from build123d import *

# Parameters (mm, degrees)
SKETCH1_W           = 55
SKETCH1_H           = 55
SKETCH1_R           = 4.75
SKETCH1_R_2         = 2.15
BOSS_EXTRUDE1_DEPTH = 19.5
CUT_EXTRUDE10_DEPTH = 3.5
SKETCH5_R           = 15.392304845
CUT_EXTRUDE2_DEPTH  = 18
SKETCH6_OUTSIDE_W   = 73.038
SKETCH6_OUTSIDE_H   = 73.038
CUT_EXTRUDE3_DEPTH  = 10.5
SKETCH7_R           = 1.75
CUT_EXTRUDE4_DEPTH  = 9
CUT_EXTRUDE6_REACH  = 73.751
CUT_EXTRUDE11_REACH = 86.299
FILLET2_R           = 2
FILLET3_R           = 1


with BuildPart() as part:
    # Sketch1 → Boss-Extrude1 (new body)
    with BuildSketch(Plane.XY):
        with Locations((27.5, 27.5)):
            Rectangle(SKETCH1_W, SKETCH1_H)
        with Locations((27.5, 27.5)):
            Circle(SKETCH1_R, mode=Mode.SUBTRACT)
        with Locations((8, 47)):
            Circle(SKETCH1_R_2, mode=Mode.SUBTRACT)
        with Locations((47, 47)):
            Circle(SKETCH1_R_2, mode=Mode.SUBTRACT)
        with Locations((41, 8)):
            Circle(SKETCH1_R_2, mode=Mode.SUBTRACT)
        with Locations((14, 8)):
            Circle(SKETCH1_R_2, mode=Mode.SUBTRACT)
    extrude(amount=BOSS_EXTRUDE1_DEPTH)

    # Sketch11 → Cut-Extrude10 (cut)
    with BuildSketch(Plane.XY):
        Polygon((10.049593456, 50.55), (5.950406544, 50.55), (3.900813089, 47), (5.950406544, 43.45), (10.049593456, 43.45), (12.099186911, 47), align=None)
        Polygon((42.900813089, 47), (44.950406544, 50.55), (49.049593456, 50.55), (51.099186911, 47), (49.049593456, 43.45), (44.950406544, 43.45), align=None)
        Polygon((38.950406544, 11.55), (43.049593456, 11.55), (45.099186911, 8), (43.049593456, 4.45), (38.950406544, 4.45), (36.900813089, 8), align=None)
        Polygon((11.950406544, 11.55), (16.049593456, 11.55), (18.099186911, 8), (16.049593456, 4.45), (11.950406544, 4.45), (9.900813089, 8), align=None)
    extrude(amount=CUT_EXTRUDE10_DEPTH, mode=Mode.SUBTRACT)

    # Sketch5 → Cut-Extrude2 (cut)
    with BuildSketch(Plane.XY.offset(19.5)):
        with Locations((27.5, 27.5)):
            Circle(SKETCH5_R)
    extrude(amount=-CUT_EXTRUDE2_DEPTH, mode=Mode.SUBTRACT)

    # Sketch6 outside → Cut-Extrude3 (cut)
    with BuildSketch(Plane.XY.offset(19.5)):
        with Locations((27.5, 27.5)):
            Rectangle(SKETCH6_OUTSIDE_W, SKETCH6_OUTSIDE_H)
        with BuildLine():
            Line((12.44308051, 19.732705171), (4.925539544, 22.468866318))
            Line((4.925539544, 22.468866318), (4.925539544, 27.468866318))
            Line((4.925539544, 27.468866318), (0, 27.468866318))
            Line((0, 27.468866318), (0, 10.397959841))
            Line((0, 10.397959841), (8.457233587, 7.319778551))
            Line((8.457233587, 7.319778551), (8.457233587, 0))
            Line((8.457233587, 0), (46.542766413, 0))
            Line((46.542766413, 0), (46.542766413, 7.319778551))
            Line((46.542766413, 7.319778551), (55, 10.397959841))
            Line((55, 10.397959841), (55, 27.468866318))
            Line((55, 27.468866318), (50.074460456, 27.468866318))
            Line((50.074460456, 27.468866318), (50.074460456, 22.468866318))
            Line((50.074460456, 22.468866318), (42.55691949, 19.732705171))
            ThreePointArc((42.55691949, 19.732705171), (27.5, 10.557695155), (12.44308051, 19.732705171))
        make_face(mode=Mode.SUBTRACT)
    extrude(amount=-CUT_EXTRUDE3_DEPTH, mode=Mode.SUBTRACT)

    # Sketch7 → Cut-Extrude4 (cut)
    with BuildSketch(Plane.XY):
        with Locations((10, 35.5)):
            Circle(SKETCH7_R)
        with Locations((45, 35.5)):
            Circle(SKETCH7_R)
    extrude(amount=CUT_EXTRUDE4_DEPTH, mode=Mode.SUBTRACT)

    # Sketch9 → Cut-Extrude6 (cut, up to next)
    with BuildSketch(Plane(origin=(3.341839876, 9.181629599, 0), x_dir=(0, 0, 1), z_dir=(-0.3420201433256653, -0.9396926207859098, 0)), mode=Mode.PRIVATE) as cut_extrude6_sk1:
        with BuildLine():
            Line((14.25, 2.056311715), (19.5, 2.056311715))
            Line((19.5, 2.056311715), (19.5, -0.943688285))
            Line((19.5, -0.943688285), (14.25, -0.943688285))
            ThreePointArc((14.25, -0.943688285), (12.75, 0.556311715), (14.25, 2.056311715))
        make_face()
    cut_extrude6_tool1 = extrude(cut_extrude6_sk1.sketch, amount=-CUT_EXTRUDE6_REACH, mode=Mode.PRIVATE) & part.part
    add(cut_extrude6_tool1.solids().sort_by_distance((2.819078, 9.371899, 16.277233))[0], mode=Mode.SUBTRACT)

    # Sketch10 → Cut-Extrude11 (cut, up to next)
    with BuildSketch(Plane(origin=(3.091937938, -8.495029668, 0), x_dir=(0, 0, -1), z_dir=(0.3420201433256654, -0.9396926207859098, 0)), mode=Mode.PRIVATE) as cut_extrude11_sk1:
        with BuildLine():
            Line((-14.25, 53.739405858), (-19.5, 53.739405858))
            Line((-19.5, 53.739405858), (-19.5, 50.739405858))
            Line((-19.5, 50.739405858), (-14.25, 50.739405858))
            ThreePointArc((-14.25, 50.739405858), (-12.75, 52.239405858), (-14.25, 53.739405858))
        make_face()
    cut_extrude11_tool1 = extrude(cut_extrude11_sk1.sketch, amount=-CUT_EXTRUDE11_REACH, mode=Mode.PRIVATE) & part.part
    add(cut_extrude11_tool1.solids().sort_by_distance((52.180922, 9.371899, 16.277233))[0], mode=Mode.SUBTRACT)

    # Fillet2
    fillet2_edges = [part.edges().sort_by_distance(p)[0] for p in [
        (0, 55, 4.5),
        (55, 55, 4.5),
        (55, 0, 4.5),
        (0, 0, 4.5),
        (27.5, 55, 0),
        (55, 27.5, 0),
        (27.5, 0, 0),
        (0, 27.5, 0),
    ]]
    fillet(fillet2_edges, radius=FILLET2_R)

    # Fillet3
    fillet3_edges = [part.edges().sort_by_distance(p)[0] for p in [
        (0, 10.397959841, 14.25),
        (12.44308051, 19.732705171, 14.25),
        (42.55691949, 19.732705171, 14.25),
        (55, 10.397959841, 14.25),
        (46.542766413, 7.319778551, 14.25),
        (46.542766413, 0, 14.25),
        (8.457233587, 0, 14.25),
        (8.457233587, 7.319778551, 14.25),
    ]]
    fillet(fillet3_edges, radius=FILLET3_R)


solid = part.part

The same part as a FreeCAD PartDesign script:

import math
import FreeCAD as App
import Part
import Sketcher
from FreeCAD import Vector
Q = App.Units.Quantity


def edges_at(feature, points):
    """Names of the edges that pass closest to the given points."""
    edges = feature.Shape.Edges
    near = lambda p: min(range(len(edges)), key=lambda i: edges[i].distToShape(Part.Vertex(*p))[0])
    return sorted({f"Edge{near(p) + 1}" for p in points})


def add_polygon(sketch, points):
    """Adds a closed chain of lines whose ends are joined by coincident constraints."""
    first, n = sketch.GeometryCount, len(points)
    for a, b in zip(points, points[1:] + points[:1]):
        sketch.addGeometry(Part.LineSegment(App.Vector(*a, 0), App.Vector(*b, 0)), False)
    for i in range(n):
        sketch.addConstraint(Sketcher.Constraint("Coincident", first + i, 2, first + (i + 1) % n, 1))

doc = App.newDocument("Part")
body = doc.addObject("PartDesign::Body", "Body")

sketch1 = body.newObject("Sketcher::SketchObject", "Sketch")
sketch1.AttachmentSupport = (doc.getObject("XY_Plane"), [""])
sketch1.MapMode = "FlatFace"
add_polygon(sketch1, [(0, 55), (0, 0), (55, 0), (55, 55)])
sketch1.addGeometry(Part.Circle(Vector(14, 8, 0), Vector(0, 0, 1), 2.1), False)
sketch1.addGeometry(Part.Circle(Vector(41, 8, 0), Vector(0, 0, 1), 2.1), False)
sketch1.addGeometry(Part.Circle(Vector(8, 47, 0), Vector(0, 0, 1), 2.1), False)
sketch1.addGeometry(Part.Circle(Vector(27.5, 27.5, 0), Vector(0, 0, 1), 4.8), False)
sketch1.addGeometry(Part.Circle(Vector(47, 47, 0), Vector(0, 0, 1), 2.1), False)
sketch1.addConstraint(Sketcher.Constraint("Vertical", 0))
sketch1.addConstraint(Sketcher.Constraint("Horizontal", 1))
sketch1.addConstraint(Sketcher.Constraint("Vertical", 2))
sketch1.addConstraint(Sketcher.Constraint("Horizontal", 3))
sketch1.addConstraint(Sketcher.Constraint("Coincident", 0, 2, -1, 1))
sketch1.addConstraint(Sketcher.Constraint("Equal", 4, 5))
sketch1.addConstraint(Sketcher.Constraint("Equal", 5, 6))
sketch1.addConstraint(Sketcher.Constraint("Equal", 6, 8))
sketch1.addConstraint(Sketcher.Constraint("Horizontal", 4, 3, 5, 3))
sketch1.addConstraint(Sketcher.Constraint("Horizontal", 6, 3, 8, 3))
sketch1.addConstraint(Sketcher.Constraint("Equal", 3, 0))
sketch1.addConstraint(Sketcher.Constraint("Diameter", 4, Q("4.3 mm")))
sketch1.addConstraint(Sketcher.Constraint("Diameter", 7, Q("9.5 mm")))
sketch1.addConstraint(Sketcher.Constraint("DistanceX", 1, 1, 1, 2, Q("55 mm")))
sketch1.addConstraint(Sketcher.Constraint("DistanceX", -1, 1, 4, 3, Q("14 mm")))
sketch1.addConstraint(Sketcher.Constraint("DistanceY", -1, 1, 4, 3, Q("8 mm")))
sketch1.addConstraint(Sketcher.Constraint("DistanceX", -1, 1, 5, 3, Q("41 mm")))
sketch1.addConstraint(Sketcher.Constraint("DistanceX", -1, 1, 6, 3, Q("8 mm")))
sketch1.addConstraint(Sketcher.Constraint("DistanceY", -1, 1, 6, 3, Q("47 mm")))
sketch1.addConstraint(Sketcher.Constraint("DistanceX", -1, 1, 8, 3, Q("47 mm")))
sketch1.addConstraint(Sketcher.Constraint("DistanceX", -1, 1, 7, 3, Q("27.5 mm")))
sketch1.addConstraint(Sketcher.Constraint("DistanceY", -1, 1, 7, 3, Q("27.5 mm")))
pad1 = body.newObject("PartDesign::Pad", "Pad")
pad1.Profile = sketch1
pad1.Length = 19.5

sketch2 = body.newObject("Sketcher::SketchObject", "Sketch001")
sketch2.AttachmentSupport = (doc.getObject("XY_Plane"), [""])
sketch2.MapMode = "FlatFace"
add_polygon(sketch2, [(10, 50.5), (6, 50.5), (3.9, 47), (6, 43.5), (10, 43.5), (12.1, 47)])
add_polygon(sketch2, [(45, 50.5), (42.9, 47), (45, 43.5), (49, 43.5), (51.1, 47), (49, 50.5)])
add_polygon(sketch2, [(43, 11.6), (39, 11.6), (36.9, 8), (39, 4.5), (43, 4.5), (45.1, 8)])
add_polygon(sketch2, [(16, 11.6), (12, 11.6), (9.9, 8), (12, 4.5), (16, 4.5), (18.1, 8)])
sketch2.addConstraint(Sketcher.Constraint("Horizontal", 0))
sketch2.addConstraint(Sketcher.Constraint("Horizontal", 3))
sketch2.addConstraint(Sketcher.Constraint("Horizontal", 8))
sketch2.addConstraint(Sketcher.Constraint("Horizontal", 11))
sketch2.addConstraint(Sketcher.Constraint("Horizontal", 12))
sketch2.addConstraint(Sketcher.Constraint("Horizontal", 15))
sketch2.addConstraint(Sketcher.Constraint("Horizontal", 18))
sketch2.addConstraint(Sketcher.Constraint("Horizontal", 21))
sketch2.addConstraint(Sketcher.Constraint("Parallel", 1, 4))
sketch2.addConstraint(Sketcher.Constraint("Parallel", 2, 5))
sketch2.addConstraint(Sketcher.Constraint("Parallel", 4, 6))
sketch2.addConstraint(Sketcher.Constraint("Parallel", 5, 7))
sketch2.addConstraint(Sketcher.Constraint("Parallel", 6, 9))
sketch2.addConstraint(Sketcher.Constraint("Parallel", 7, 10))
sketch2.addConstraint(Sketcher.Constraint("Parallel", 9, 13))
sketch2.addConstraint(Sketcher.Constraint("Parallel", 10, 14))
sketch2.addConstraint(Sketcher.Constraint("Parallel", 13, 16))
sketch2.addConstraint(Sketcher.Constraint("Parallel", 14, 17))
sketch2.addConstraint(Sketcher.Constraint("Parallel", 16, 19))
sketch2.addConstraint(Sketcher.Constraint("Parallel", 17, 20))
sketch2.addConstraint(Sketcher.Constraint("Parallel", 19, 22))
sketch2.addConstraint(Sketcher.Constraint("Parallel", 20, 23))
sketch2.addConstraint(Sketcher.Constraint("Horizontal", 1, 2, 4, 2))
sketch2.addConstraint(Sketcher.Constraint("Horizontal", 4, 2, 6, 2))
sketch2.addConstraint(Sketcher.Constraint("Horizontal", 3, 2, 7, 2))
sketch2.addConstraint(Sketcher.Constraint("Horizontal", 6, 2, 9, 2))
sketch2.addConstraint(Sketcher.Constraint("Horizontal", 5, 2, 10, 2))
sketch2.addConstraint(Sketcher.Constraint("Horizontal", 13, 2, 16, 2))
sketch2.addConstraint(Sketcher.Constraint("Horizontal", 17, 2, 18, 2))
sketch2.addConstraint(Sketcher.Constraint("Horizontal", 16, 2, 19, 2))
sketch2.addConstraint(Sketcher.Constraint("Horizontal", 15, 2, 20, 2))
sketch2.addConstraint(Sketcher.Constraint("Horizontal", 19, 2, 22, 2))
sketch2.addConstraint(Sketcher.Constraint("Vertical", 0, 2, 2, 2))
sketch2.addConstraint(Sketcher.Constraint("Vertical", 3, 2, 5, 2))
sketch2.addConstraint(Sketcher.Constraint("Vertical", 12, 2, 14, 2))
sketch2.addConstraint(Sketcher.Constraint("Equal", 3, 8))
sketch2.addConstraint(Sketcher.Constraint("Equal", 11, 12))
sketch2.addConstraint(Sketcher.Constraint("Equal", 15, 18))
sketch2.addConstraint(Sketcher.Constraint("Equal", 10, 13))
sketch2.addConstraint(Sketcher.Constraint("Angle", 1, Q("-120 deg")))
sketch2.addConstraint(Sketcher.Constraint("DistanceY", -1, 1, 1, 2, Q("47 mm")))
sketch2.addConstraint(Sketcher.Constraint("DistanceY", -1, 1, 13, 2, Q("8 mm")))
sketch2.addConstraint(Sketcher.Constraint("DistanceX", 2, 2, 7, 2, Q("39 mm")))
sketch2.addConstraint(Sketcher.Constraint("DistanceX", 12, 2, 7, 2, Q("6 mm")))
sketch2.addConstraint(Sketcher.Constraint("DistanceX", 18, 2, 12, 2, Q("27 mm")))
sketch2.addConstraint(Sketcher.Constraint("DistanceY", 2, 2, 0, 2, Q("7.1 mm")))
sketch2.addConstraint(Sketcher.Constraint("DistanceX", 0, 2, 0, 1, Q("4.099187 mm")))
sketch2.addConstraint(Sketcher.Constraint("DistanceX", -1, 1, 0, 2, Q("5.950407 mm")))
pocket1 = body.newObject("PartDesign::Pocket", "Pocket")
pocket1.Profile = sketch2
pocket1.Length = 3.5
pocket1.Reversed = True

sketch3 = body.newObject("Sketcher::SketchObject", "Sketch002")
sketch3.AttachmentSupport = (doc.getObject("XY_Plane"), [""])
sketch3.MapMode = "FlatFace"
sketch3.AttachmentOffset = App.Placement(Vector(0, 0, 19.5), App.Rotation())
sketch3.addGeometry(Part.Circle(Vector(28, 28, 0), Vector(0, 0, 1), 15), False)
sketch3.addConstraint(Sketcher.Constraint("DistanceX", -1, 1, 0, 3, Q("27.5 mm")))
sketch3.addConstraint(Sketcher.Constraint("DistanceY", -1, 1, 0, 3, Q("27.5 mm")))
sketch3.addConstraint(Sketcher.Constraint("Diameter", 0, Q("30.78461 mm")))
pocket2 = body.newObject("PartDesign::Pocket", "Pocket001")
pocket2.Profile = sketch3
pocket2.Length = 18

sketch4 = body.newObject("Sketcher::SketchObject", "Sketch003")
sketch4.AttachmentSupport = (doc.getObject("XY_Plane"), [""])
sketch4.MapMode = "FlatFace"
sketch4.AttachmentOffset = App.Placement(Vector(0, 0, 19.5), App.Rotation())
add_polygon(sketch4, [(-9, 64), (-9, -9), (64, -9), (64, 64)])
sketch4.addGeometry(Part.LineSegment(Vector(4.9, 22.5, 0), Vector(12.4, 19.7, 0)), False)
sketch4.addGeometry(Part.ArcOfCircle(Part.Circle(Vector(27.5, 27.5, 0), Vector(0, 0, 1), 16.9), math.radians(-153), math.radians(-27)), False)
sketch4.addGeometry(Part.LineSegment(Vector(42.6, 19.7, 0), Vector(50.1, 22.5, 0)), False)
sketch4.addGeometry(Part.LineSegment(Vector(50.1, 22.5, 0), Vector(50.1, 27.5, 0)), False)
sketch4.addGeometry(Part.LineSegment(Vector(50.1, 27.5, 0), Vector(55, 27.5, 0)), False)
sketch4.addGeometry(Part.LineSegment(Vector(55, 27.5, 0), Vector(55, 10.4, 0)), False)
sketch4.addGeometry(Part.LineSegment(Vector(55, 10.4, 0), Vector(46.5, 7.3, 0)), False)
sketch4.addGeometry(Part.LineSegment(Vector(46.5, 7.3, 0), Vector(46.5, 0, 0)), False)
sketch4.addGeometry(Part.LineSegment(Vector(46.5, 0, 0), Vector(8.5, 0, 0)), False)
sketch4.addGeometry(Part.LineSegment(Vector(8.5, 0, 0), Vector(8.5, 7.3, 0)), False)
sketch4.addGeometry(Part.LineSegment(Vector(8.5, 7.3, 0), Vector(0, 10.4, 0)), False)
sketch4.addGeometry(Part.LineSegment(Vector(0, 10.4, 0), Vector(0, 27.5, 0)), False)
sketch4.addGeometry(Part.LineSegment(Vector(0, 27.5, 0), Vector(4.9, 27.5, 0)), False)
sketch4.addGeometry(Part.LineSegment(Vector(4.9, 27.5, 0), Vector(4.9, 22.5, 0)), False)
sketch4.addConstraint(Sketcher.Constraint("Coincident", 4, 2, 5, 1))
sketch4.addConstraint(Sketcher.Constraint("Coincident", 5, 2, 6, 1))
sketch4.addConstraint(Sketcher.Constraint("Coincident", 6, 2, 7, 1))
sketch4.addConstraint(Sketcher.Constraint("Coincident", 7, 2, 8, 1))
sketch4.addConstraint(Sketcher.Constraint("Coincident", 8, 2, 9, 1))
sketch4.addConstraint(Sketcher.Constraint("Coincident", 9, 2, 10, 1))
sketch4.addConstraint(Sketcher.Constraint("Coincident", 10, 2, 11, 1))
sketch4.addConstraint(Sketcher.Constraint("Coincident", 11, 2, 12, 1))
sketch4.addConstraint(Sketcher.Constraint("Coincident", 12, 2, 13, 1))
sketch4.addConstraint(Sketcher.Constraint("Coincident", 13, 2, 14, 1))
sketch4.addConstraint(Sketcher.Constraint("Coincident", 14, 2, 15, 1))
sketch4.addConstraint(Sketcher.Constraint("Coincident", 15, 2, 16, 1))
sketch4.addConstraint(Sketcher.Constraint("Coincident", 16, 2, 17, 1))
sketch4.addConstraint(Sketcher.Constraint("Coincident", 17, 2, 4, 1))
sketch4.addConstraint(Sketcher.Constraint("Vertical", 0))
sketch4.addConstraint(Sketcher.Constraint("Horizontal", 1))
sketch4.addConstraint(Sketcher.Constraint("Vertical", 2))
sketch4.addConstraint(Sketcher.Constraint("Horizontal", 3))
sketch4.addConstraint(Sketcher.Constraint("Vertical", 7))
sketch4.addConstraint(Sketcher.Constraint("Horizontal", 8))
sketch4.addConstraint(Sketcher.Constraint("Vertical", 9))
sketch4.addConstraint(Sketcher.Constraint("Vertical", 11))
sketch4.addConstraint(Sketcher.Constraint("Horizontal", 12))
sketch4.addConstraint(Sketcher.Constraint("Vertical", 13))
sketch4.addConstraint(Sketcher.Constraint("Vertical", 15))
sketch4.addConstraint(Sketcher.Constraint("Horizontal", 16))
sketch4.addConstraint(Sketcher.Constraint("Vertical", 17))
sketch4.addConstraint(Sketcher.Constraint("PointOnObject", 11, 2, -1))
sketch4.addConstraint(Sketcher.Constraint("PointOnObject", 14, 2, -2))
sketch4.addConstraint(Sketcher.Constraint("Parallel", 6, 10))
sketch4.addConstraint(Sketcher.Constraint("Parallel", 4, 14))
sketch4.addConstraint(Sketcher.Constraint("Horizontal", 4, 2, 5, 2))
sketch4.addConstraint(Sketcher.Constraint("Horizontal", 10, 2, 13, 2))
sketch4.addConstraint(Sketcher.Constraint("Horizontal", 9, 2, 14, 2))
sketch4.addConstraint(Sketcher.Constraint("Horizontal", 8, 2, 15, 2))
sketch4.addConstraint(Sketcher.Constraint("Horizontal", 6, 2, 17, 2))
sketch4.addConstraint(Sketcher.Constraint("Equal", 8, 16))
sketch4.addConstraint(Sketcher.Constraint("Equal", 3, 0))
sketch4.addConstraint(Sketcher.Constraint("Equal", 4, 6))
sketch4.addConstraint(Sketcher.Constraint("DistanceY", 7, 1, 7, 2, Q("5 mm")))
sketch4.addConstraint(Sketcher.Constraint("Angle", 4, Q("-20 deg")))
sketch4.addConstraint(Sketcher.Constraint("Distance", 4, Q("8 mm")))
sketch4.addConstraint(Sketcher.Constraint("Distance", 10, Q("9 mm")))
sketch4.addConstraint(Sketcher.Constraint("DistanceX", -1, 1, 8, 2, Q("55 mm")))
sketch4.addConstraint(Sketcher.Constraint("DistanceY", -1, 1, 5, 3, Q("27.5 mm")))
sketch4.addConstraint(Sketcher.Constraint("DistanceX", 1, 1, 1, 2, Q("73.038 mm")))
sketch4.addConstraint(Sketcher.Constraint("DistanceX", 0, 2, -1, 1, Q("9.019 mm")))
sketch4.addConstraint(Sketcher.Constraint("DistanceY", 0, 2, -1, 1, Q("9.019 mm")))
sketch4.addConstraint(Sketcher.Constraint("Radius", 5, Q("16.942305 mm")))
sketch4.addConstraint(Sketcher.Constraint("DistanceX", 8, 1, 8, 2, Q("4.92554 mm")))
sketch4.addConstraint(Sketcher.Constraint("DistanceY", 11, 2, 11, 1, Q("7.319779 mm")))
pocket3 = body.newObject("PartDesign::Pocket", "Pocket002")
pocket3.Profile = sketch4
pocket3.Length = 10.5

sketch5 = body.newObject("Sketcher::SketchObject", "Sketch004")
sketch5.AttachmentSupport = (doc.getObject("XY_Plane"), [""])
sketch5.MapMode = "FlatFace"
sketch5.addGeometry(Part.Circle(Vector(10, 35.5, 0), Vector(0, 0, 1), 1.8), False)
sketch5.addGeometry(Part.Circle(Vector(45, 35.5, 0), Vector(0, 0, 1), 1.8), False)
sketch5.addConstraint(Sketcher.Constraint("Equal", 0, 1))
sketch5.addConstraint(Sketcher.Constraint("Horizontal", 0, 3, 1, 3))
sketch5.addConstraint(Sketcher.Constraint("Diameter", 0, Q("3.5 mm")))
sketch5.addConstraint(Sketcher.Constraint("DistanceX", -1, 1, 0, 3, Q("10 mm")))
sketch5.addConstraint(Sketcher.Constraint("DistanceX", -1, 1, 1, 3, Q("45 mm")))
sketch5.addConstraint(Sketcher.Constraint("DistanceY", -1, 1, 0, 3, Q("35.5 mm")))
pocket4 = body.newObject("PartDesign::Pocket", "Pocket003")
pocket4.Profile = sketch5
pocket4.Length = 9
pocket4.Reversed = True

sketch6 = body.newObject("Sketcher::SketchObject", "Sketch005")
sketch6.Placement = App.Placement(Vector(3.34184, 9.18163, 0), App.Rotation(Vector(0, 0, 1), Vector(-0.939692621, 0.342020143, 0), Vector(-0.342020143, -0.939692621, 0), "ZXY"))
sketch6.addGeometry(Part.LineSegment(Vector(19.5, 2.1, 0), Vector(14.2, 2.1, 0)), False)
sketch6.addGeometry(Part.ArcOfCircle(Part.Circle(Vector(14.2, 0.6, 0), Vector(0, 0, 1), 1.5), math.radians(90), math.radians(270)), False)
sketch6.addGeometry(Part.LineSegment(Vector(14.2, -0.9, 0), Vector(19.5, -0.9, 0)), False)
sketch6.addGeometry(Part.LineSegment(Vector(19.5, -0.9, 0), Vector(19.5, 2.1, 0)), False)
sketch6.addConstraint(Sketcher.Constraint("Tangent", 0, 2, 1, 1))
sketch6.addConstraint(Sketcher.Constraint("Tangent", 1, 2, 2, 1))
sketch6.addConstraint(Sketcher.Constraint("Coincident", 2, 2, 3, 1))
sketch6.addConstraint(Sketcher.Constraint("Coincident", 3, 2, 0, 1))
sketch6.addConstraint(Sketcher.Constraint("Horizontal", 0))
sketch6.addConstraint(Sketcher.Constraint("Horizontal", 2))
sketch6.addConstraint(Sketcher.Constraint("Vertical", 3))
sketch6.addConstraint(Sketcher.Constraint("Radius", 1, Q("1.5 mm")))
sketch6.addConstraint(Sketcher.Constraint("DistanceX", 0, 2, 0, 1, Q("5.25 mm")))
sketch6.addConstraint(Sketcher.Constraint("DistanceX", -1, 1, 2, 2, Q("19.5 mm")))
sketch6.addConstraint(Sketcher.Constraint("DistanceY", -1, 1, 1, 3, Q("0.556312 mm")))
pocket5 = body.newObject("PartDesign::Pocket", "Pocket004")
pocket5.Profile = sketch6
pocket5.Type = "UpToFirst"

sketch7 = body.newObject("Sketcher::SketchObject", "Sketch006")
sketch7.Placement = App.Placement(Vector(3.091938, -8.49503, 0), App.Rotation(Vector(0, 0, -1), Vector(0.939692621, 0.342020143, 0), Vector(0.342020143, -0.939692621, 0), "ZXY"))
sketch7.addGeometry(Part.LineSegment(Vector(-14.2, 53.7, 0), Vector(-19.5, 53.7, 0)), False)
sketch7.addGeometry(Part.LineSegment(Vector(-19.5, 53.7, 0), Vector(-19.5, 50.7, 0)), False)
sketch7.addGeometry(Part.LineSegment(Vector(-19.5, 50.7, 0), Vector(-14.2, 50.7, 0)), False)
sketch7.addGeometry(Part.ArcOfCircle(Part.Circle(Vector(-14.2, 52.2, 0), Vector(0, 0, 1), 1.5), math.radians(-90), math.radians(90)), False)
sketch7.addConstraint(Sketcher.Constraint("Coincident", 0, 2, 1, 1))
sketch7.addConstraint(Sketcher.Constraint("Coincident", 1, 2, 2, 1))
sketch7.addConstraint(Sketcher.Constraint("Tangent", 2, 2, 3, 1))
sketch7.addConstraint(Sketcher.Constraint("Tangent", 3, 2, 0, 1))
sketch7.addConstraint(Sketcher.Constraint("Horizontal", 0))
sketch7.addConstraint(Sketcher.Constraint("Vertical", 1))
sketch7.addConstraint(Sketcher.Constraint("Horizontal", 2))
sketch7.addConstraint(Sketcher.Constraint("Radius", 3, Q("1.5 mm")))
sketch7.addConstraint(Sketcher.Constraint("DistanceX", 0, 2, 0, 1, Q("5.25 mm")))
sketch7.addConstraint(Sketcher.Constraint("DistanceX", 0, 2, -1, 1, Q("19.5 mm")))
sketch7.addConstraint(Sketcher.Constraint("DistanceY", -1, 1, 3, 3, Q("52.239406 mm")))
pocket6 = body.newObject("PartDesign::Pocket", "Pocket005")
pocket6.Profile = sketch7
pocket6.Type = "UpToFirst"
doc.recompute()

fillet = body.newObject("PartDesign::Fillet", "Fillet")
fillet.Base = (pocket6, edges_at(pocket6, [
    (0, 55, 4.5),
    (55, 55, 4.5),
    (55, 0, 4.5),
    (0, 0, 4.5),
    (27.5, 55, 0),
    (55, 27.5, 0),
    (27.5, 0, 0),
    (0, 27.5, 0),
]))
fillet.Radius = 2
doc.recompute()

fillet2 = body.newObject("PartDesign::Fillet", "Fillet001")
fillet2.Base = (fillet, edges_at(fillet, [
    (0, 10.398, 14.25),
    (12.443, 19.733, 14.25),
    (42.557, 19.733, 14.25),
    (55, 10.398, 14.25),
    (46.543, 7.32, 14.25),
    (46.543, 0, 14.25),
    (8.457, 0, 14.25),
    (8.457, 7.32, 14.25),
]))
fillet2.Radius = 1

doc.recompute()
